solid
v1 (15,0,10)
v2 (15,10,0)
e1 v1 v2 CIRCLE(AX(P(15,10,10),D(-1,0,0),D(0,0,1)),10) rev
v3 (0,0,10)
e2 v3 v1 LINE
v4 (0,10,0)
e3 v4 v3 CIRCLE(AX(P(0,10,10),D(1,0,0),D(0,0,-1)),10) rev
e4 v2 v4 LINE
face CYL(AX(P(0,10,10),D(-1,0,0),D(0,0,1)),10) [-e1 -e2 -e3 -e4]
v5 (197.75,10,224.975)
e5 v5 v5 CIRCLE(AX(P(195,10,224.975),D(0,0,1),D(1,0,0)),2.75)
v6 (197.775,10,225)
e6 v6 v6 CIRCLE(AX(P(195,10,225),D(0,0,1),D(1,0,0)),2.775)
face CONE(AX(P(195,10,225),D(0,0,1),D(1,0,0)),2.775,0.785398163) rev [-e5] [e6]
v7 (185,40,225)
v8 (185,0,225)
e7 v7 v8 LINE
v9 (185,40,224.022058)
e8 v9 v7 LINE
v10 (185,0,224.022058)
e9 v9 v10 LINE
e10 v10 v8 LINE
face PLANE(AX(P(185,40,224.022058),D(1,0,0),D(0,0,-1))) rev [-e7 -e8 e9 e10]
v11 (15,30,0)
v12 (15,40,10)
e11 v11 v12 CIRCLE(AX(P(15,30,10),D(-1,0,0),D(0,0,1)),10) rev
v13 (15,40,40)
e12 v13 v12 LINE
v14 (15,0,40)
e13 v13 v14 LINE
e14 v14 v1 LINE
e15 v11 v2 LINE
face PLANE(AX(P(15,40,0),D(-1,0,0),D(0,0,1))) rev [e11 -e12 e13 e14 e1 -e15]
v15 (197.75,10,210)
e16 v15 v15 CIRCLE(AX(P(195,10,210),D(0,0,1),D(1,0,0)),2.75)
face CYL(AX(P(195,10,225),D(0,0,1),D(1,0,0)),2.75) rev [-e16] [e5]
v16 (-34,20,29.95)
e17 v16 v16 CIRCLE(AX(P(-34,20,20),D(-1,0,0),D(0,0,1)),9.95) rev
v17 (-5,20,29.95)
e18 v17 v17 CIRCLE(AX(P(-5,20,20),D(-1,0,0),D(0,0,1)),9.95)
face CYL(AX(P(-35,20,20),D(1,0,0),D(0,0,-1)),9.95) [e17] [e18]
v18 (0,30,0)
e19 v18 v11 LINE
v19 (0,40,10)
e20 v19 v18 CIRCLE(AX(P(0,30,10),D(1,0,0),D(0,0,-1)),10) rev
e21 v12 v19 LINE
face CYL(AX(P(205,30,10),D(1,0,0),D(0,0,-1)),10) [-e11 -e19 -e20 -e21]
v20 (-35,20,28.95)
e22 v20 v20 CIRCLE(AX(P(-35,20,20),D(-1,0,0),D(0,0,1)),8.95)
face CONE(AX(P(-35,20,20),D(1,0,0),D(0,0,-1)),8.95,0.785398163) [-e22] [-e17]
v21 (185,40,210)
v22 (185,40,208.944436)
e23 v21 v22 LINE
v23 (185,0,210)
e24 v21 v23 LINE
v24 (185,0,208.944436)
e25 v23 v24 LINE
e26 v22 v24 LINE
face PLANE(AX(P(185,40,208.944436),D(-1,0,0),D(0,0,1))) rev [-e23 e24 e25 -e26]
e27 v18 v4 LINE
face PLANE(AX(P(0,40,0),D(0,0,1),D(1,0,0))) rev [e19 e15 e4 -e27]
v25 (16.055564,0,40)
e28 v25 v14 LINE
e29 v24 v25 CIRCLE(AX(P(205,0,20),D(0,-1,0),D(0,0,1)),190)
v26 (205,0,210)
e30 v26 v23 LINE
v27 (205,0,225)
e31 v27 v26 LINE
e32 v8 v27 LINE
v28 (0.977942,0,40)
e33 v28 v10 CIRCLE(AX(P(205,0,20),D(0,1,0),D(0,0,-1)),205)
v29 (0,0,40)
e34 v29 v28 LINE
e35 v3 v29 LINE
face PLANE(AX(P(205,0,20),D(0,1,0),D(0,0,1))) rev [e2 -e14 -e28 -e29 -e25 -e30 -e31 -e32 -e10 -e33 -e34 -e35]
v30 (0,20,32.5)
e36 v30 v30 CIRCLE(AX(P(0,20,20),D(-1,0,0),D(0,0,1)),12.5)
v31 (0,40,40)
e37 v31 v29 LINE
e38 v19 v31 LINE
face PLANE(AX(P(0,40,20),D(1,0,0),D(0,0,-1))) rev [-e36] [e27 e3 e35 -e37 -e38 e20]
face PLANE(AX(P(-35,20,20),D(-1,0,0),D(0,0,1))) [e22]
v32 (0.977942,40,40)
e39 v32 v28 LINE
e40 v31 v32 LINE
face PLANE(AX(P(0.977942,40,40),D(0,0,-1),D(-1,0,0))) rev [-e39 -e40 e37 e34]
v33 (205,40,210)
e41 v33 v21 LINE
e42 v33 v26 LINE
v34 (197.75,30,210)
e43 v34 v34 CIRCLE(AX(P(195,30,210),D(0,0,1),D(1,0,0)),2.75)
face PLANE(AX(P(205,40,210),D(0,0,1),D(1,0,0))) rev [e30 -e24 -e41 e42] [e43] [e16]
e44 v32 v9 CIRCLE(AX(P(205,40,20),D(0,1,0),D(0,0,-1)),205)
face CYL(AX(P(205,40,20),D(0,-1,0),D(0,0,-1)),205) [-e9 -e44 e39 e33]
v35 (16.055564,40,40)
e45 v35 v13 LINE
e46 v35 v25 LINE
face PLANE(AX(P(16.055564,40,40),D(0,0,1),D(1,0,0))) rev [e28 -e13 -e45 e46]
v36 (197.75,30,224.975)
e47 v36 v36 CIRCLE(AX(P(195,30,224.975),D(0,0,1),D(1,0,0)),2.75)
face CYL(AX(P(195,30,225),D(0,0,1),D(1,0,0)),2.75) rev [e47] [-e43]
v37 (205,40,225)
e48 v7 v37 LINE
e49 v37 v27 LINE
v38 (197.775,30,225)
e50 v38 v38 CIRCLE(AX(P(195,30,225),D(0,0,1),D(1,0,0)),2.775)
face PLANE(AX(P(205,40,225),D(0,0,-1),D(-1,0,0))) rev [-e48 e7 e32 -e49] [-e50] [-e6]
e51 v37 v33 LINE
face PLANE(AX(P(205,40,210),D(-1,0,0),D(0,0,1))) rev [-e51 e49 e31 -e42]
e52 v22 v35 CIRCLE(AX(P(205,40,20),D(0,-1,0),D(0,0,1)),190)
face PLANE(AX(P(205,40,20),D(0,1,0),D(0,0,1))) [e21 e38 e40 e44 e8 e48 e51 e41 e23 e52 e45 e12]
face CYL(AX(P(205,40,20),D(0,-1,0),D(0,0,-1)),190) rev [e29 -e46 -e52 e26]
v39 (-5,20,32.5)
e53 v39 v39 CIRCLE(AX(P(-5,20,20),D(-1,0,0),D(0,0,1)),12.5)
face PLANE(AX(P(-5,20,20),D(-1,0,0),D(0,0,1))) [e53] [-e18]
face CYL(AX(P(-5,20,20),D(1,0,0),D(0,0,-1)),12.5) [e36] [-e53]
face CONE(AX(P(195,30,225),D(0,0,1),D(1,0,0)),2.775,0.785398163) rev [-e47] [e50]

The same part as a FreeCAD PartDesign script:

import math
import FreeCAD as App
import Part
import Sketcher


def edges_at(feature, points):
    """Names of the edges that pass closest to the given points."""
    edges = feature.Shape.Edges
    near = lambda p: min(range(len(edges)), key=lambda i: edges[i].distToShape(Part.Vertex(*p))[0])
    return sorted({f"Edge{near(p) + 1}" for p in points})

doc = App.newDocument("Part")
body = doc.addObject("PartDesign::Body", "Body")

sketch1 = body.newObject("Sketcher::SketchObject", "Sketch")
sketch1.AttachmentSupport = (doc.getObject("XZ_Plane"), [""])
sketch1.MapMode = "FlatFace"
sketch1.addGeometry(Part.LineSegment(App.Vector(0, 0, 0), App.Vector(0, 40, 0)), False)
sketch1.addGeometry(Part.LineSegment(App.Vector(0, 40, 0), App.Vector(0.977942, 40, 0)), False)
sketch1.addGeometry(Part.ArcOfCircle(Part.Circle(App.Vector(205, 20, 0), App.Vector(0, 0, 1), 205), math.radians(95.598738), math.radians(174.401262)), False)
sketch1.addGeometry(Part.LineSegment(App.Vector(185, 224.022058, 0), App.Vector(185, 225, 0)), False)
sketch1.addGeometry(Part.LineSegment(App.Vector(185, 225, 0), App.Vector(205, 225, 0)), False)
sketch1.addGeometry(Part.LineSegment(App.Vector(205, 225, 0), App.Vector(205, 210, 0)), False)
sketch1.addGeometry(Part.LineSegment(App.Vector(205, 210, 0), App.Vector(185, 210, 0)), False)
sketch1.addGeometry(Part.LineSegment(App.Vector(185, 210, 0), App.Vector(185, 208.944436, 0)), False)
sketch1.addGeometry(Part.ArcOfCircle(Part.Circle(App.Vector(205, 20, 0), App.Vector(0, 0, 1), 190), math.radians(96.042328), math.radians(173.957672)), False)
sketch1.addGeometry(Part.LineSegment(App.Vector(16.055564, 40, 0), App.Vector(15, 40, 0)), False)
sketch1.addGeometry(Part.LineSegment(App.Vector(15, 40, 0), App.Vector(15, 0, 0)), False)
sketch1.addGeometry(Part.LineSegment(App.Vector(15, 0, 0), App.Vector(0, 0, 0)), False)
sketch1.addConstraint(Sketcher.Constraint("Coincident", 0, 2, 1, 1))
sketch1.addConstraint(Sketcher.Constraint("Coincident", 1, 2, 2, 2))
sketch1.addConstraint(Sketcher.Constraint("Coincident", 2, 1, 3, 1))
sketch1.addConstraint(Sketcher.Constraint("Coincident", 3, 2, 4, 1))
sketch1.addConstraint(Sketcher.Constraint("Coincident", 4, 2, 5, 1))
sketch1.addConstraint(Sketcher.Constraint("Coincident", 5, 2, 6, 1))
sketch1.addConstraint(Sketcher.Constraint("Coincident", 6, 2, 7, 1))
sketch1.addConstraint(Sketcher.Constraint("Coincident", 7, 2, 8, 1))
sketch1.addConstraint(Sketcher.Constraint("Coincident", 8, 2, 9, 1))
sketch1.addConstraint(Sketcher.Constraint("Coincident", 9, 2, 10, 1))
sketch1.addConstraint(Sketcher.Constraint("Coincident", 10, 2, 11, 1))
sketch1.addConstraint(Sketcher.Constraint("Coincident", 11, 2, 0, 1))
sketch1.addConstraint(Sketcher.Constraint("Vertical", 0))
sketch1.addConstraint(Sketcher.Constraint("Horizontal", 1))
sketch1.addConstraint(Sketcher.Constraint("Vertical", 3))
sketch1.addConstraint(Sketcher.Constraint("Horizontal", 4))
sketch1.addConstraint(Sketcher.Constraint("Vertical", 5))
sketch1.addConstraint(Sketcher.Constraint("Horizontal", 6))
sketch1.addConstraint(Sketcher.Constraint("Vertical", 7))
sketch1.addConstraint(Sketcher.Constraint("Horizontal", 9))
sketch1.addConstraint(Sketcher.Constraint("Vertical", 10))
sketch1.addConstraint(Sketcher.Constraint("Horizontal", 11))
sketch1.addConstraint(Sketcher.Constraint("Coincident", 11, 2, -1, 1))
sketch1.addConstraint(Sketcher.Constraint("Coincident", 8, 3, 2, 3))
sketch1.addConstraint(Sketcher.Constraint("Horizontal", 1, 2, 8, 2))
sketch1.addConstraint(Sketcher.Constraint("Vertical", 8, 3, 4, 2))
sketch1.addConstraint(Sketcher.Constraint("Vertical", 3, 2, 6, 2))
sketch1.addConstraint(Sketcher.Constraint("Equal", 1, 3))
sketch1.addConstraint(Sketcher.Constraint("Equal", 11, 5))
sketch1.addConstraint(Sketcher.Constraint("Equal", 9, 7))
sketch1.addConstraint(Sketcher.Constraint("Radius", 2, 205.0))
sketch1.addConstraint(Sketcher.Constraint("Radius", 8, 190.0))
sketch1.addConstraint(Sketcher.Constraint("DistanceX", 4, 1, 4, 2, 20.0))
sketch1.addConstraint(Sketcher.Constraint("DistanceX", 11, 2, 11, 1, 15.0))
sketch1.addConstraint(Sketcher.Constraint("DistanceY", 0, 1, 0, 2, 40.0))
sketch1.addConstraint(Sketcher.Constraint("DistanceX", -1, 1, 2, 3, 205.0))
pad1 = body.newObject("PartDesign::Pad", "Pad")
pad1.Profile = sketch1
pad1.Length = 40
pad1.Reversed = True

sketch2 = body.newObject("Sketcher::SketchObject", "Sketch001")
sketch2.AttachmentSupport = (doc.getObject("YZ_Plane"), [""])
sketch2.MapMode = "FlatFace"
sketch2.addGeometry(Part.Circle(App.Vector(20, 20, 0), App.Vector(0, 0, 1), 12.5), False)
sketch2.addConstraint(Sketcher.Constraint("Diameter", 0, 25.0))
sketch2.addConstraint(Sketcher.Constraint("DistanceX", -1, 1, 0, 3, 20.0))
sketch2.addConstraint(Sketcher.Constraint("DistanceY", -1, 1, 0, 3, 20.0))
pad2 = body.newObject("PartDesign::Pad", "Pad001")
pad2.Profile = sketch2
pad2.Length = 5
pad2.Reversed = True

sketch3 = body.newObject("Sketcher::SketchObject", "Sketch002")
sketch3.AttachmentSupport = (doc.getObject("YZ_Plane"), [""])
sketch3.MapMode = "FlatFace"
sketch3.AttachmentOffset = App.Placement(App.Vector(0, 0, -5), App.Rotation())
sketch3.addGeometry(Part.Circle(App.Vector(20, 20, 0), App.Vector(0, 0, 1), 9.95), False)
sketch3.addConstraint(Sketcher.Constraint("Diameter", 0, 19.9))
sketch3.addConstraint(Sketcher.Constraint("DistanceX", -1, 1, 0, 3, 20.0))
sketch3.addConstraint(Sketcher.Constraint("DistanceY", -1, 1, 0, 3, 20.0))
pad3 = body.newObject("PartDesign::Pad", "Pad002")
pad3.Profile = sketch3
pad3.Length = 30
pad3.Reversed = True
doc.recompute()

fillet = body.newObject("PartDesign::Fillet", "Fillet")
fillet.Base = (pad3, edges_at(pad3, [(7.5, 0, 0), (7.5, 40, 0)]))
fillet.Radius = 10

sketch4 = body.newObject("Sketcher::SketchObject", "Sketch003")
sketch4.AttachmentSupport = (doc.getObject("XY_Plane"), [""])
sketch4.MapMode = "FlatFace"
sketch4.AttachmentOffset = App.Placement(App.Vector(0, 0, 225), App.Rotation())
sketch4.addGeometry(Part.Circle(App.Vector(195, 30, 0), App.Vector(0, 0, 1), 2.75), False)
sketch4.addGeometry(Part.Circle(App.Vector(195, 10, 0), App.Vector(0, 0, 1), 2.75), False)
sketch4.addConstraint(Sketcher.Constraint("Equal", 0, 1))
sketch4.addConstraint(Sketcher.Constraint("Vertical", 0, 3, 1, 3))
sketch4.addConstraint(Sketcher.Constraint("Diameter", 0, 5.5))
sketch4.addConstraint(Sketcher.Constraint("DistanceX", -1, 1, 0, 3, 195.0))
sketch4.addConstraint(Sketcher.Constraint("DistanceY", -1, 1, 0, 3, 30.0))
sketch4.addConstraint(Sketcher.Constraint("DistanceY", -1, 1, 1, 3, 10.0))
doc.recompute()
hole = body.newObject("PartDesign::Hole", "Hole")
hole.Profile = sketch4
hole.ThreadType = "None"
hole.Diameter = 5.5
hole.DepthType = "ThroughAll"
hole.HoleCutType = "Countersink"
hole.HoleCutDiameter = 5.55
hole.HoleCutCountersinkAngle = 90
doc.recompute()

chamfer = body.newObject("PartDesign::Chamfer", "Chamfer")
chamfer.Base = (hole, edges_at(hole, [(-35, 20, 10.05)]))
chamfer.Size = 1

doc.recompute()
